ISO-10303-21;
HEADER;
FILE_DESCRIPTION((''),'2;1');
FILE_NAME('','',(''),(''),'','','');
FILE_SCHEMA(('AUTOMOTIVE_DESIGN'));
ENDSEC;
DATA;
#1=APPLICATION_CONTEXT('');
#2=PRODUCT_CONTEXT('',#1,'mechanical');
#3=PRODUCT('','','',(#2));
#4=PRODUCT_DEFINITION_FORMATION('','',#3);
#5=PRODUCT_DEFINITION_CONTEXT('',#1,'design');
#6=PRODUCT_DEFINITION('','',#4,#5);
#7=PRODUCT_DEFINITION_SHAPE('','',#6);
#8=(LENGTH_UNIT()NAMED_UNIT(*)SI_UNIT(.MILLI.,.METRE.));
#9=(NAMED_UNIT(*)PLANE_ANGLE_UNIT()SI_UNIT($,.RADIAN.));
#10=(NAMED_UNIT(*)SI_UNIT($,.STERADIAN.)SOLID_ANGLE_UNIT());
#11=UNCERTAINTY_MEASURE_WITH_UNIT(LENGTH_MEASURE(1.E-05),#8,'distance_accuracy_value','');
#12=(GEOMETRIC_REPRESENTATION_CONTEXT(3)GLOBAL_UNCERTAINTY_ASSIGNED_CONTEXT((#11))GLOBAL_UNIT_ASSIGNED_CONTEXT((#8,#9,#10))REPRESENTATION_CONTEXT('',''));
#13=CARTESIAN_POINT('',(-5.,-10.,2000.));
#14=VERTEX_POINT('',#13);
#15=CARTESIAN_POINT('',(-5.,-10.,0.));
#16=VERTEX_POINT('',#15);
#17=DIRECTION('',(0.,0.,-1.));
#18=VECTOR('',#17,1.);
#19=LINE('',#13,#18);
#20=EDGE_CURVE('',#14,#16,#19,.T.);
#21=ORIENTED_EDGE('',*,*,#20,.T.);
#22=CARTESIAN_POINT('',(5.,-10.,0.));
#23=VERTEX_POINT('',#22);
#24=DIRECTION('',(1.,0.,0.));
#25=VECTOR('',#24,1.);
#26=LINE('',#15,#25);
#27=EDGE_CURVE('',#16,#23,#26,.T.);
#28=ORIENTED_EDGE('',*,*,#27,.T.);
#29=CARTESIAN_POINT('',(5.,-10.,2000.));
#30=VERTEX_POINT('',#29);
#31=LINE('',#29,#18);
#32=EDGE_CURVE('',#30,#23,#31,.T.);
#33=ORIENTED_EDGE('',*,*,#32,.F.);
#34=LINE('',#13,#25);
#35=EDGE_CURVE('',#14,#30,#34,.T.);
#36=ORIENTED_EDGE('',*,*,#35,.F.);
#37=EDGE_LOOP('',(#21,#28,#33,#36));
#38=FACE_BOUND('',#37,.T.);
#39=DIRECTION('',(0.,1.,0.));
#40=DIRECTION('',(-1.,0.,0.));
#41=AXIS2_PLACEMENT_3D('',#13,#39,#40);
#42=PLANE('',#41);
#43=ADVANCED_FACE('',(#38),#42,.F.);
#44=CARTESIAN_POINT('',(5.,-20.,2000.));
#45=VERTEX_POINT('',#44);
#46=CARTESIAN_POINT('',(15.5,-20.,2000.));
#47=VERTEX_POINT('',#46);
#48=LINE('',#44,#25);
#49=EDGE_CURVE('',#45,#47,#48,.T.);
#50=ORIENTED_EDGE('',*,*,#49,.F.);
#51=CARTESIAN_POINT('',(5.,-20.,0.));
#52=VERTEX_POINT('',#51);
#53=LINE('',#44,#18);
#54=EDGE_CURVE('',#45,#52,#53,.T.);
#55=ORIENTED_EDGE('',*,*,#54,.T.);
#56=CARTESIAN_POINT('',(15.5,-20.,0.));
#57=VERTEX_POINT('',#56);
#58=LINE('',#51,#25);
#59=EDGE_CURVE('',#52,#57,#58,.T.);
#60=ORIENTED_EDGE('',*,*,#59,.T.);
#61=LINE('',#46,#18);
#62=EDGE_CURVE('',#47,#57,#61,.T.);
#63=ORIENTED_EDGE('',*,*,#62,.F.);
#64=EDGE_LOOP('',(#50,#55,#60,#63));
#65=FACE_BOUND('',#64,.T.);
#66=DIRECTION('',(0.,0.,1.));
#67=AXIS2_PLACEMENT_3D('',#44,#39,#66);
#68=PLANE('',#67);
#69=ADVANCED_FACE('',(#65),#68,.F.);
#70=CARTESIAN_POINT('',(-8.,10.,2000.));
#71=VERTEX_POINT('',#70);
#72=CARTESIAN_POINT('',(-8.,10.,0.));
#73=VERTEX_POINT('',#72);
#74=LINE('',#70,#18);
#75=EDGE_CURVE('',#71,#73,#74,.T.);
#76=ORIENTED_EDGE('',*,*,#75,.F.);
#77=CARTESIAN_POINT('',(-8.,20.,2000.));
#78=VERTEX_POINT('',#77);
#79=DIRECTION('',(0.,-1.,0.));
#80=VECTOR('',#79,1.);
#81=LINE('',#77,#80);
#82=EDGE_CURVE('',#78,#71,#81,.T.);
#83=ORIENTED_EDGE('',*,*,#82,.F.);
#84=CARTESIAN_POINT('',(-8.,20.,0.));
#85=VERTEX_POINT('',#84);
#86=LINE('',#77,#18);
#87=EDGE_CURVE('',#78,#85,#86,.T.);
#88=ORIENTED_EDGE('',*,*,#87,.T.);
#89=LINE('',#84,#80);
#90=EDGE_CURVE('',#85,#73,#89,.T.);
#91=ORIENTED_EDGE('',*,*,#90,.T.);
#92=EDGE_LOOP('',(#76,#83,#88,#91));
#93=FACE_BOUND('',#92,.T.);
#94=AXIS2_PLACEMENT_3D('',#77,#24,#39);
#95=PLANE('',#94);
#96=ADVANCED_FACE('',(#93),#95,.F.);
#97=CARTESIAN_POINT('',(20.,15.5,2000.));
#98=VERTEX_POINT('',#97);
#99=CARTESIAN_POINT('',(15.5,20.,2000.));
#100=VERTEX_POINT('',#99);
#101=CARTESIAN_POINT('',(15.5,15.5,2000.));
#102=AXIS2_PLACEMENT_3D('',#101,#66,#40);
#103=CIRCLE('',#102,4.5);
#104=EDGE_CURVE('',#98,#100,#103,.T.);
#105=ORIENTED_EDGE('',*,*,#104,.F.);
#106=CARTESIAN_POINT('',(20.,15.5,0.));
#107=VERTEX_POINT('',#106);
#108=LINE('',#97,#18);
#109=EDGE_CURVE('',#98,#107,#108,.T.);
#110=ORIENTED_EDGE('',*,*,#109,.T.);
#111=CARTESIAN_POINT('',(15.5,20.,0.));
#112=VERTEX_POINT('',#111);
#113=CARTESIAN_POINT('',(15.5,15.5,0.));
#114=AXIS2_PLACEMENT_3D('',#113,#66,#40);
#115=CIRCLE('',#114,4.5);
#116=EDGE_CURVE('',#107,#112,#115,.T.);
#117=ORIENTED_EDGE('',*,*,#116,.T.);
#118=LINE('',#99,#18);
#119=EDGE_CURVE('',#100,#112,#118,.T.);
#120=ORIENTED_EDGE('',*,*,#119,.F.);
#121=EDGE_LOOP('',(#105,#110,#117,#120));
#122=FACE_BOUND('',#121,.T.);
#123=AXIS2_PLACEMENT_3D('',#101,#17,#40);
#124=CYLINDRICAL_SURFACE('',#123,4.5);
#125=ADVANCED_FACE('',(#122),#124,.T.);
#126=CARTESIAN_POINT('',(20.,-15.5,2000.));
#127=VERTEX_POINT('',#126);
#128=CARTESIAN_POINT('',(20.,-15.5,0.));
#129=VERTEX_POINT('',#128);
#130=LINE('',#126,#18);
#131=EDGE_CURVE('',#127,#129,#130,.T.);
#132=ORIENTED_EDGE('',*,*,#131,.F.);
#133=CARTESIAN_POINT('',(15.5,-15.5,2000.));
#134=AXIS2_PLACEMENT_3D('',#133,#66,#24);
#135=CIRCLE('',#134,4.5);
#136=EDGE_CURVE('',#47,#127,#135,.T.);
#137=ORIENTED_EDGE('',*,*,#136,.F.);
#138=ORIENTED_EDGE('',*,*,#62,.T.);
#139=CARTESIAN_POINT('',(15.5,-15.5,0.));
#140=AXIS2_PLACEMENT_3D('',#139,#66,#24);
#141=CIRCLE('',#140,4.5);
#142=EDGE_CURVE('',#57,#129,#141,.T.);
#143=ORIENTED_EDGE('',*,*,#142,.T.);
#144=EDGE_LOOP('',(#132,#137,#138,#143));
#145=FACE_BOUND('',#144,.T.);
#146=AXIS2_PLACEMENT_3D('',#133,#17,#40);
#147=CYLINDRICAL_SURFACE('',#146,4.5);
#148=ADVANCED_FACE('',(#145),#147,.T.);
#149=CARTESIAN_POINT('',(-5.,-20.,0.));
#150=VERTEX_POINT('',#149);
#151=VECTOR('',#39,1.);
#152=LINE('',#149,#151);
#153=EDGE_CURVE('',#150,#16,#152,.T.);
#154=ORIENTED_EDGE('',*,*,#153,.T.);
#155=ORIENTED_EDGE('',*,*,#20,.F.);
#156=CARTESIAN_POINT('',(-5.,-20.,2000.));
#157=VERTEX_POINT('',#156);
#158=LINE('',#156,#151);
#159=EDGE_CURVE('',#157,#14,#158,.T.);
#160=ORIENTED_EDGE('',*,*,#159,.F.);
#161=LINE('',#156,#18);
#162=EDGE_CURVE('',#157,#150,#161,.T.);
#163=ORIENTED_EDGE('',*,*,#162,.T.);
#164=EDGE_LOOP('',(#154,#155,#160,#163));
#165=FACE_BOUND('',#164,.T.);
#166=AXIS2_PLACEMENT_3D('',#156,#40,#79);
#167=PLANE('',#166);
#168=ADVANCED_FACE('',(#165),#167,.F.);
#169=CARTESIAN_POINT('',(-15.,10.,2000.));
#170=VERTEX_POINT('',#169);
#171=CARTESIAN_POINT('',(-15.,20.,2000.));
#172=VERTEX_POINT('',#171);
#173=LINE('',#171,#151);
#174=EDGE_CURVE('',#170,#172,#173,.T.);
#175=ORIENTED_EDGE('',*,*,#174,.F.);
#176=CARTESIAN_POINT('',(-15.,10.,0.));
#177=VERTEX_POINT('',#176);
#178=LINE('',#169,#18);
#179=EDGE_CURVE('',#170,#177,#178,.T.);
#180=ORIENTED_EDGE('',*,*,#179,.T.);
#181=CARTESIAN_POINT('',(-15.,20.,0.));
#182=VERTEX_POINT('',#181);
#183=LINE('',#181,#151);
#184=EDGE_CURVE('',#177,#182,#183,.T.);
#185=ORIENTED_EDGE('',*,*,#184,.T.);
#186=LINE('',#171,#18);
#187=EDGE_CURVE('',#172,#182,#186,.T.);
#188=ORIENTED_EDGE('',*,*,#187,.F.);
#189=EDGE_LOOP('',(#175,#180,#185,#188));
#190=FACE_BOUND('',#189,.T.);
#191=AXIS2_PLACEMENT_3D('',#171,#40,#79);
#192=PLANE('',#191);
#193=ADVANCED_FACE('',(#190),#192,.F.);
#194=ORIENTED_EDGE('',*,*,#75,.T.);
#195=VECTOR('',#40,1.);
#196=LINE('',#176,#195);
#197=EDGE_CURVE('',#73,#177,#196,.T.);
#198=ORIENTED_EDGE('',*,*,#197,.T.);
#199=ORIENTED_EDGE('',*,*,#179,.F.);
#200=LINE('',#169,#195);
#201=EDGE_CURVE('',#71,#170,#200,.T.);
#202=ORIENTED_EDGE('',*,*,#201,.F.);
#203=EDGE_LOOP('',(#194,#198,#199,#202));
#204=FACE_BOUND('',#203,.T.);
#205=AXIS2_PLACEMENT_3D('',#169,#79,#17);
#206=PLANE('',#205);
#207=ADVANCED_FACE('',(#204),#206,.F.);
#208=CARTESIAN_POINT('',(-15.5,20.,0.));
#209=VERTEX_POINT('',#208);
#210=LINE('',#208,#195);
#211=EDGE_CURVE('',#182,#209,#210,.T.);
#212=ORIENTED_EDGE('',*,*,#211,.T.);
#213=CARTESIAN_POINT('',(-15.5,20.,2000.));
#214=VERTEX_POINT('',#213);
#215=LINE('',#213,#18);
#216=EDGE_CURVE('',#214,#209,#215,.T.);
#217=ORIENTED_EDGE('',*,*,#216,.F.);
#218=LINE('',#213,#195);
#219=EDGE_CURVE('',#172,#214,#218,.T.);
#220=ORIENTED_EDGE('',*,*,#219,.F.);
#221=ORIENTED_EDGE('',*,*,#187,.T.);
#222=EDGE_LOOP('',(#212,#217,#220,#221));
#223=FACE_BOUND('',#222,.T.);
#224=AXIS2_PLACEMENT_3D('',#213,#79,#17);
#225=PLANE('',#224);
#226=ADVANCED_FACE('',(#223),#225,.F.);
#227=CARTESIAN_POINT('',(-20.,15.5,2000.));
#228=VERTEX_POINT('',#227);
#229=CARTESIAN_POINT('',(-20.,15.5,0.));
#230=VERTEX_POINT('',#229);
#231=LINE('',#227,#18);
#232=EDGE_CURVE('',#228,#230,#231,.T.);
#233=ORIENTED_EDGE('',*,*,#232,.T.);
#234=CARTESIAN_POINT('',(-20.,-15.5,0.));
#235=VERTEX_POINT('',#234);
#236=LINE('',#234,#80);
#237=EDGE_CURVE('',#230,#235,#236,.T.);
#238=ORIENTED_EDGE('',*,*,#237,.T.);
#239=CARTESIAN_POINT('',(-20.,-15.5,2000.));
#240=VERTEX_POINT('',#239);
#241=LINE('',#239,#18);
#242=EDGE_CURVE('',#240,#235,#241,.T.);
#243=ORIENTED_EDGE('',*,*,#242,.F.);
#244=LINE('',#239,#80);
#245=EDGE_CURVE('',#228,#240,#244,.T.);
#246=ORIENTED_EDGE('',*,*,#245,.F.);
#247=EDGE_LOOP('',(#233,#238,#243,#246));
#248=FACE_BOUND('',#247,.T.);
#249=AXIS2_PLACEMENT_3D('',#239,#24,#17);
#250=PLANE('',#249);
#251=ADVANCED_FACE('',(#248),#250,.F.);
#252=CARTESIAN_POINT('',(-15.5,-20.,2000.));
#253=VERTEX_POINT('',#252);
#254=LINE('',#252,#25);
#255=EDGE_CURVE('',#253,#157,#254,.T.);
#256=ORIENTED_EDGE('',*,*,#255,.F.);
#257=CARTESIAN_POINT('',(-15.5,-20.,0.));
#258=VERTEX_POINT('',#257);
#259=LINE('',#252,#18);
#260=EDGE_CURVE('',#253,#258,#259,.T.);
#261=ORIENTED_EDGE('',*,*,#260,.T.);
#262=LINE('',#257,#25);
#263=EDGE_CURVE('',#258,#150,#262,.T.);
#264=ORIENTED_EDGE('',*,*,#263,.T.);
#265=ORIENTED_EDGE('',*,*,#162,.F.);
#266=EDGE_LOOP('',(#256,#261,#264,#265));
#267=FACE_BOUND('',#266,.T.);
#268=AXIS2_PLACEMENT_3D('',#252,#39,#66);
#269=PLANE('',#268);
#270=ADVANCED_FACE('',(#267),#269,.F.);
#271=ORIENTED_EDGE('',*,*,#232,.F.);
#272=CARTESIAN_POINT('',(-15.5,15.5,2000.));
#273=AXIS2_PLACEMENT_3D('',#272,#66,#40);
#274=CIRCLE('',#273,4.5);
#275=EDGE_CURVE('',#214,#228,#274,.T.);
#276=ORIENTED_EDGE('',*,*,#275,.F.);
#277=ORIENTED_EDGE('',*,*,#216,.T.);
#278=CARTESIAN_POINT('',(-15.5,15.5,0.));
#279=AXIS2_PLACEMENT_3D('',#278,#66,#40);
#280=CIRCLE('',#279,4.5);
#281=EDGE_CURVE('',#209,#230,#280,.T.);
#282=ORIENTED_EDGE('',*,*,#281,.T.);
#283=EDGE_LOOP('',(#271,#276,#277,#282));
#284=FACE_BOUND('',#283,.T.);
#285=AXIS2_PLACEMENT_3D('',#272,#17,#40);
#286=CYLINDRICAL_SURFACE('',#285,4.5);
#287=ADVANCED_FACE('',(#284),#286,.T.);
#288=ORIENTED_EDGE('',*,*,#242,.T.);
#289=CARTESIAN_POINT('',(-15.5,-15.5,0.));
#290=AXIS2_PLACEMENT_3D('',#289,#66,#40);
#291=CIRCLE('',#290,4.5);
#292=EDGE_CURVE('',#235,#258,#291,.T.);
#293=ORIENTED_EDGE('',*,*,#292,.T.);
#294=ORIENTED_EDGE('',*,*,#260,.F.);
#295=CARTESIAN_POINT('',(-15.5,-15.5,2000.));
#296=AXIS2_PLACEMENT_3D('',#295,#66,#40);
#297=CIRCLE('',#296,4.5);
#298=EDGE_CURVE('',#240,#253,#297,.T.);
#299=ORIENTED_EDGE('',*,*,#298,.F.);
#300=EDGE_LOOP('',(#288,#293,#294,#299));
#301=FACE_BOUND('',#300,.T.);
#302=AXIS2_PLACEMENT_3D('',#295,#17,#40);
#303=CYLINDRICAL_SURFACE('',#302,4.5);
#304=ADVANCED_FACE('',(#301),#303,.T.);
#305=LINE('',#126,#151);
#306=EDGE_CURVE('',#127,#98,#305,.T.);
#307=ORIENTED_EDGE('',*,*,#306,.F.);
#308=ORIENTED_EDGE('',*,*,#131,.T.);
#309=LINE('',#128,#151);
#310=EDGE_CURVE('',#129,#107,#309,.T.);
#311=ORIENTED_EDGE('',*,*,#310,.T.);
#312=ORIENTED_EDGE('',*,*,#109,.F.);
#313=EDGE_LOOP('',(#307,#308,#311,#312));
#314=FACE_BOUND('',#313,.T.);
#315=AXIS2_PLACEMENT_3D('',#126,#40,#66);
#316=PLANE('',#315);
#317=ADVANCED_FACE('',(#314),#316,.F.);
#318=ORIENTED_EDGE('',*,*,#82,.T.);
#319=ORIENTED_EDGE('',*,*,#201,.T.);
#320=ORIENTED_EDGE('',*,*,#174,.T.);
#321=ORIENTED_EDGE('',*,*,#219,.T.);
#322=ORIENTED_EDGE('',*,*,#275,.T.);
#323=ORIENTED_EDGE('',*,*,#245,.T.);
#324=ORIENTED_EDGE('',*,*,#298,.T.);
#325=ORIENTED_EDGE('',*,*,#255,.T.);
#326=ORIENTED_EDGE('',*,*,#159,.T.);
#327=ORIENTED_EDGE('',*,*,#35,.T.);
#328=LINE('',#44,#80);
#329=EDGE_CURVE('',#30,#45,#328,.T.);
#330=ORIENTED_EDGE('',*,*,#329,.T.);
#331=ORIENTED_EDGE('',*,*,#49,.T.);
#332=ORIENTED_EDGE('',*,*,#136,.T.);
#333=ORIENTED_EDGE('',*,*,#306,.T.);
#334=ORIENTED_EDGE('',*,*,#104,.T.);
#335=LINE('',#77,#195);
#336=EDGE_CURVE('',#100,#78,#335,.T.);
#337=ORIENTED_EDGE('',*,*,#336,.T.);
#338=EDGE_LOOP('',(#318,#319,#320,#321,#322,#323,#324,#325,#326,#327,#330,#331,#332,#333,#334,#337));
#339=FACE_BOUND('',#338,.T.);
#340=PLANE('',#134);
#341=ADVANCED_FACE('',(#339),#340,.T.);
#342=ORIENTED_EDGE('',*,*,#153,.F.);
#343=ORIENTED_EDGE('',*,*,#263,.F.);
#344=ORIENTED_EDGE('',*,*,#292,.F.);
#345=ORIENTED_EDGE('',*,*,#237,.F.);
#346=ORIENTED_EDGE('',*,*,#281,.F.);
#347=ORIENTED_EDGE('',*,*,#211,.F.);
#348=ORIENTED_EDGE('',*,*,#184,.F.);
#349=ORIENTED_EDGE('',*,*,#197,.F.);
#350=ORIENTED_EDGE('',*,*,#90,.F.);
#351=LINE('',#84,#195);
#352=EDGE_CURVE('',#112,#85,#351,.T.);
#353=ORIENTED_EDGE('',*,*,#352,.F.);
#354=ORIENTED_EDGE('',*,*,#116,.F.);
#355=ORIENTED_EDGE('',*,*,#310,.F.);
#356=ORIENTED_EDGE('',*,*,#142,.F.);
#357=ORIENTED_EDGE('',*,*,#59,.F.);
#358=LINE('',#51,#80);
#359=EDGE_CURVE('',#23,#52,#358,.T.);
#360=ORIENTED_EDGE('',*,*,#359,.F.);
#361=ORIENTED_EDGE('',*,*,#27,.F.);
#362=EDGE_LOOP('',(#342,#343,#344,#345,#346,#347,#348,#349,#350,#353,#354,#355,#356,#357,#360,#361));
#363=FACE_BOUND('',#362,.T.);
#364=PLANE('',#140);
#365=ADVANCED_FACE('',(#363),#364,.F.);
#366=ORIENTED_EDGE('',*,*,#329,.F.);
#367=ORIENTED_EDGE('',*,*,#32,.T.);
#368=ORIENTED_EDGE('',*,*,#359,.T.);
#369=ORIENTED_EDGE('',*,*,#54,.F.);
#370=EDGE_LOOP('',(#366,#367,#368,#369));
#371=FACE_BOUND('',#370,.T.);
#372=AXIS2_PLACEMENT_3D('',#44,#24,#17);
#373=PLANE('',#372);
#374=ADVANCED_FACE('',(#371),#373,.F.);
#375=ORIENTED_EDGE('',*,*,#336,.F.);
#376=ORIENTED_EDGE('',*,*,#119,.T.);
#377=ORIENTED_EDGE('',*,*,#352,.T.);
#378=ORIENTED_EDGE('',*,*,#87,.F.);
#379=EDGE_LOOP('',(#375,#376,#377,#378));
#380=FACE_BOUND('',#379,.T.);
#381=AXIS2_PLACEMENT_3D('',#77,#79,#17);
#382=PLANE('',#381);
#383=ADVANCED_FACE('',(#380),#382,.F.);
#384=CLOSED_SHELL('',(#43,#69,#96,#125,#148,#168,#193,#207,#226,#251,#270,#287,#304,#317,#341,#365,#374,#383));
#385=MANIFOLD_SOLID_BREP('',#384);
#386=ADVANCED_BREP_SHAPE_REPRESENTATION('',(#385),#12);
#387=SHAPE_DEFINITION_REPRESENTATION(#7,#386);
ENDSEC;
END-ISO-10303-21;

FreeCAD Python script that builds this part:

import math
import FreeCAD as App
import Part
import Sketcher

doc = App.newDocument("Part")
body = doc.addObject("PartDesign::Body", "Body")

# Sketch on XY plane
sketch1 = doc.addObject("Sketcher::SketchObject", "Sketch")
body.addObject(sketch1)
sketch1.AttachmentSupport = (doc.XY_Plane, [""])
sketch1.MapMode = "FlatFace"
sketch1.addGeometry([
    Part.LineSegment(App.Vector(-15.5, -20, 0), App.Vector(-5, -20, 0)),  # 0
    Part.LineSegment(App.Vector(-5, -20, 0), App.Vector(-5, -10, 0)),  # 1
    Part.LineSegment(App.Vector(-5, -10, 0), App.Vector(5, -10, 0)),  # 2
    Part.LineSegment(App.Vector(5, -10, 0), App.Vector(5, -20, 0)),  # 3
    Part.LineSegment(App.Vector(5, -20, 0), App.Vector(15.5, -20, 0)),  # 4
    Part.ArcOfCircle(Part.Circle(App.Vector(15.5, -15.5, 0), App.Vector(0, 0, 1), 4.5), math.radians(-90), math.radians(0)),  # 5
    Part.LineSegment(App.Vector(20, -15.5, 0), App.Vector(20, 15.5, 0)),  # 6
    Part.ArcOfCircle(Part.Circle(App.Vector(15.5, 15.5, 0), App.Vector(0, 0, 1), 4.5), math.radians(0), math.radians(90)),  # 7
    Part.LineSegment(App.Vector(15.5, 20, 0), App.Vector(-8, 20, 0)),  # 8
    Part.LineSegment(App.Vector(-8, 20, 0), App.Vector(-8, 10, 0)),  # 9
    Part.LineSegment(App.Vector(-8, 10, 0), App.Vector(-15, 10, 0)),  # 10
    Part.LineSegment(App.Vector(-15, 10, 0), App.Vector(-15, 20, 0)),  # 11
    Part.LineSegment(App.Vector(-15, 20, 0), App.Vector(-15.5, 20, 0)),  # 12
    Part.ArcOfCircle(Part.Circle(App.Vector(-15.5, 15.5, 0), App.Vector(0, 0, 1), 4.5), math.radians(90), math.radians(180)),  # 13
    Part.LineSegment(App.Vector(-20, 15.5, 0), App.Vector(-20, -15.5, 0)),  # 14
    Part.ArcOfCircle(Part.Circle(App.Vector(-15.5, -15.5, 0), App.Vector(0, 0, 1), 4.5), math.radians(-180), math.radians(-90)),  # 15
], False)
sketch1.addConstraint([
    Sketcher.Constraint("Coincident", 0, 2, 1, 1),
    Sketcher.Constraint("Coincident", 1, 2, 2, 1),
    Sketcher.Constraint("Coincident", 2, 2, 3, 1),
    Sketcher.Constraint("Coincident", 3, 2, 4, 1),
    Sketcher.Constraint("Tangent", 4, 2, 5, 1),
    Sketcher.Constraint("Tangent", 5, 2, 6, 1),
    Sketcher.Constraint("Tangent", 6, 2, 7, 1),
    Sketcher.Constraint("Tangent", 7, 2, 8, 1),
    Sketcher.Constraint("Coincident", 8, 2, 9, 1),
    Sketcher.Constraint("Coincident", 9, 2, 10, 1),
    Sketcher.Constraint("Coincident", 10, 2, 11, 1),
    Sketcher.Constraint("Coincident", 11, 2, 12, 1),
    Sketcher.Constraint("Tangent", 12, 2, 13, 1),
    Sketcher.Constraint("Tangent", 13, 2, 14, 1),
    Sketcher.Constraint("Tangent", 14, 2, 15, 1),
    Sketcher.Constraint("Tangent", 15, 2, 0, 1),
    Sketcher.Constraint("Horizontal", 0),
    Sketcher.Constraint("Vertical", 1),
    Sketcher.Constraint("Horizontal", 2),
    Sketcher.Constraint("Vertical", 3),
    Sketcher.Constraint("Horizontal", 4),
    Sketcher.Constraint("Vertical", 6),
    Sketcher.Constraint("Horizontal", 8),
    Sketcher.Constraint("Vertical", 9),
    Sketcher.Constraint("Horizontal", 10),
    Sketcher.Constraint("Vertical", 11),
    Sketcher.Constraint("Horizontal", 12),
    Sketcher.Constraint("Vertical", 14),
    Sketcher.Constraint("Equal", 5, 7),
    Sketcher.Constraint("Equal", 7, 13),
    Sketcher.Constraint("Equal", 13, 15),
    Sketcher.Constraint("Symmetric", 5, 3, 13, 3, -1, 1),
    Sketcher.Constraint("Symmetric", 0, 2, 3, 2, -2),
    Sketcher.Constraint("Horizontal", 7, 3, 13, 3),
    Sketcher.Constraint("Equal", 2, 1),
    Sketcher.Constraint("Equal", 3, 9),
    Sketcher.Constraint("Radius", 5, 4.5),
    Sketcher.Constraint("DistanceX", 2, 1, 2, 2, 10.0),
    Sketcher.Constraint("DistanceX", 10, 2, 10, 1, 7.0),
    Sketcher.Constraint("DistanceY", 6, 1, 6, 2, 31.0),
    Sketcher.Constraint("DistanceX", 0, 1, 0, 2, 10.5),
    Sketcher.Constraint("DistanceX", 8, 2, 8, 1, 23.5),
])
pad1 = doc.addObject("PartDesign::Pad", "Pad")
body.addObject(pad1)
pad1.Profile = sketch1
pad1.Length = 2000

doc.recompute()
